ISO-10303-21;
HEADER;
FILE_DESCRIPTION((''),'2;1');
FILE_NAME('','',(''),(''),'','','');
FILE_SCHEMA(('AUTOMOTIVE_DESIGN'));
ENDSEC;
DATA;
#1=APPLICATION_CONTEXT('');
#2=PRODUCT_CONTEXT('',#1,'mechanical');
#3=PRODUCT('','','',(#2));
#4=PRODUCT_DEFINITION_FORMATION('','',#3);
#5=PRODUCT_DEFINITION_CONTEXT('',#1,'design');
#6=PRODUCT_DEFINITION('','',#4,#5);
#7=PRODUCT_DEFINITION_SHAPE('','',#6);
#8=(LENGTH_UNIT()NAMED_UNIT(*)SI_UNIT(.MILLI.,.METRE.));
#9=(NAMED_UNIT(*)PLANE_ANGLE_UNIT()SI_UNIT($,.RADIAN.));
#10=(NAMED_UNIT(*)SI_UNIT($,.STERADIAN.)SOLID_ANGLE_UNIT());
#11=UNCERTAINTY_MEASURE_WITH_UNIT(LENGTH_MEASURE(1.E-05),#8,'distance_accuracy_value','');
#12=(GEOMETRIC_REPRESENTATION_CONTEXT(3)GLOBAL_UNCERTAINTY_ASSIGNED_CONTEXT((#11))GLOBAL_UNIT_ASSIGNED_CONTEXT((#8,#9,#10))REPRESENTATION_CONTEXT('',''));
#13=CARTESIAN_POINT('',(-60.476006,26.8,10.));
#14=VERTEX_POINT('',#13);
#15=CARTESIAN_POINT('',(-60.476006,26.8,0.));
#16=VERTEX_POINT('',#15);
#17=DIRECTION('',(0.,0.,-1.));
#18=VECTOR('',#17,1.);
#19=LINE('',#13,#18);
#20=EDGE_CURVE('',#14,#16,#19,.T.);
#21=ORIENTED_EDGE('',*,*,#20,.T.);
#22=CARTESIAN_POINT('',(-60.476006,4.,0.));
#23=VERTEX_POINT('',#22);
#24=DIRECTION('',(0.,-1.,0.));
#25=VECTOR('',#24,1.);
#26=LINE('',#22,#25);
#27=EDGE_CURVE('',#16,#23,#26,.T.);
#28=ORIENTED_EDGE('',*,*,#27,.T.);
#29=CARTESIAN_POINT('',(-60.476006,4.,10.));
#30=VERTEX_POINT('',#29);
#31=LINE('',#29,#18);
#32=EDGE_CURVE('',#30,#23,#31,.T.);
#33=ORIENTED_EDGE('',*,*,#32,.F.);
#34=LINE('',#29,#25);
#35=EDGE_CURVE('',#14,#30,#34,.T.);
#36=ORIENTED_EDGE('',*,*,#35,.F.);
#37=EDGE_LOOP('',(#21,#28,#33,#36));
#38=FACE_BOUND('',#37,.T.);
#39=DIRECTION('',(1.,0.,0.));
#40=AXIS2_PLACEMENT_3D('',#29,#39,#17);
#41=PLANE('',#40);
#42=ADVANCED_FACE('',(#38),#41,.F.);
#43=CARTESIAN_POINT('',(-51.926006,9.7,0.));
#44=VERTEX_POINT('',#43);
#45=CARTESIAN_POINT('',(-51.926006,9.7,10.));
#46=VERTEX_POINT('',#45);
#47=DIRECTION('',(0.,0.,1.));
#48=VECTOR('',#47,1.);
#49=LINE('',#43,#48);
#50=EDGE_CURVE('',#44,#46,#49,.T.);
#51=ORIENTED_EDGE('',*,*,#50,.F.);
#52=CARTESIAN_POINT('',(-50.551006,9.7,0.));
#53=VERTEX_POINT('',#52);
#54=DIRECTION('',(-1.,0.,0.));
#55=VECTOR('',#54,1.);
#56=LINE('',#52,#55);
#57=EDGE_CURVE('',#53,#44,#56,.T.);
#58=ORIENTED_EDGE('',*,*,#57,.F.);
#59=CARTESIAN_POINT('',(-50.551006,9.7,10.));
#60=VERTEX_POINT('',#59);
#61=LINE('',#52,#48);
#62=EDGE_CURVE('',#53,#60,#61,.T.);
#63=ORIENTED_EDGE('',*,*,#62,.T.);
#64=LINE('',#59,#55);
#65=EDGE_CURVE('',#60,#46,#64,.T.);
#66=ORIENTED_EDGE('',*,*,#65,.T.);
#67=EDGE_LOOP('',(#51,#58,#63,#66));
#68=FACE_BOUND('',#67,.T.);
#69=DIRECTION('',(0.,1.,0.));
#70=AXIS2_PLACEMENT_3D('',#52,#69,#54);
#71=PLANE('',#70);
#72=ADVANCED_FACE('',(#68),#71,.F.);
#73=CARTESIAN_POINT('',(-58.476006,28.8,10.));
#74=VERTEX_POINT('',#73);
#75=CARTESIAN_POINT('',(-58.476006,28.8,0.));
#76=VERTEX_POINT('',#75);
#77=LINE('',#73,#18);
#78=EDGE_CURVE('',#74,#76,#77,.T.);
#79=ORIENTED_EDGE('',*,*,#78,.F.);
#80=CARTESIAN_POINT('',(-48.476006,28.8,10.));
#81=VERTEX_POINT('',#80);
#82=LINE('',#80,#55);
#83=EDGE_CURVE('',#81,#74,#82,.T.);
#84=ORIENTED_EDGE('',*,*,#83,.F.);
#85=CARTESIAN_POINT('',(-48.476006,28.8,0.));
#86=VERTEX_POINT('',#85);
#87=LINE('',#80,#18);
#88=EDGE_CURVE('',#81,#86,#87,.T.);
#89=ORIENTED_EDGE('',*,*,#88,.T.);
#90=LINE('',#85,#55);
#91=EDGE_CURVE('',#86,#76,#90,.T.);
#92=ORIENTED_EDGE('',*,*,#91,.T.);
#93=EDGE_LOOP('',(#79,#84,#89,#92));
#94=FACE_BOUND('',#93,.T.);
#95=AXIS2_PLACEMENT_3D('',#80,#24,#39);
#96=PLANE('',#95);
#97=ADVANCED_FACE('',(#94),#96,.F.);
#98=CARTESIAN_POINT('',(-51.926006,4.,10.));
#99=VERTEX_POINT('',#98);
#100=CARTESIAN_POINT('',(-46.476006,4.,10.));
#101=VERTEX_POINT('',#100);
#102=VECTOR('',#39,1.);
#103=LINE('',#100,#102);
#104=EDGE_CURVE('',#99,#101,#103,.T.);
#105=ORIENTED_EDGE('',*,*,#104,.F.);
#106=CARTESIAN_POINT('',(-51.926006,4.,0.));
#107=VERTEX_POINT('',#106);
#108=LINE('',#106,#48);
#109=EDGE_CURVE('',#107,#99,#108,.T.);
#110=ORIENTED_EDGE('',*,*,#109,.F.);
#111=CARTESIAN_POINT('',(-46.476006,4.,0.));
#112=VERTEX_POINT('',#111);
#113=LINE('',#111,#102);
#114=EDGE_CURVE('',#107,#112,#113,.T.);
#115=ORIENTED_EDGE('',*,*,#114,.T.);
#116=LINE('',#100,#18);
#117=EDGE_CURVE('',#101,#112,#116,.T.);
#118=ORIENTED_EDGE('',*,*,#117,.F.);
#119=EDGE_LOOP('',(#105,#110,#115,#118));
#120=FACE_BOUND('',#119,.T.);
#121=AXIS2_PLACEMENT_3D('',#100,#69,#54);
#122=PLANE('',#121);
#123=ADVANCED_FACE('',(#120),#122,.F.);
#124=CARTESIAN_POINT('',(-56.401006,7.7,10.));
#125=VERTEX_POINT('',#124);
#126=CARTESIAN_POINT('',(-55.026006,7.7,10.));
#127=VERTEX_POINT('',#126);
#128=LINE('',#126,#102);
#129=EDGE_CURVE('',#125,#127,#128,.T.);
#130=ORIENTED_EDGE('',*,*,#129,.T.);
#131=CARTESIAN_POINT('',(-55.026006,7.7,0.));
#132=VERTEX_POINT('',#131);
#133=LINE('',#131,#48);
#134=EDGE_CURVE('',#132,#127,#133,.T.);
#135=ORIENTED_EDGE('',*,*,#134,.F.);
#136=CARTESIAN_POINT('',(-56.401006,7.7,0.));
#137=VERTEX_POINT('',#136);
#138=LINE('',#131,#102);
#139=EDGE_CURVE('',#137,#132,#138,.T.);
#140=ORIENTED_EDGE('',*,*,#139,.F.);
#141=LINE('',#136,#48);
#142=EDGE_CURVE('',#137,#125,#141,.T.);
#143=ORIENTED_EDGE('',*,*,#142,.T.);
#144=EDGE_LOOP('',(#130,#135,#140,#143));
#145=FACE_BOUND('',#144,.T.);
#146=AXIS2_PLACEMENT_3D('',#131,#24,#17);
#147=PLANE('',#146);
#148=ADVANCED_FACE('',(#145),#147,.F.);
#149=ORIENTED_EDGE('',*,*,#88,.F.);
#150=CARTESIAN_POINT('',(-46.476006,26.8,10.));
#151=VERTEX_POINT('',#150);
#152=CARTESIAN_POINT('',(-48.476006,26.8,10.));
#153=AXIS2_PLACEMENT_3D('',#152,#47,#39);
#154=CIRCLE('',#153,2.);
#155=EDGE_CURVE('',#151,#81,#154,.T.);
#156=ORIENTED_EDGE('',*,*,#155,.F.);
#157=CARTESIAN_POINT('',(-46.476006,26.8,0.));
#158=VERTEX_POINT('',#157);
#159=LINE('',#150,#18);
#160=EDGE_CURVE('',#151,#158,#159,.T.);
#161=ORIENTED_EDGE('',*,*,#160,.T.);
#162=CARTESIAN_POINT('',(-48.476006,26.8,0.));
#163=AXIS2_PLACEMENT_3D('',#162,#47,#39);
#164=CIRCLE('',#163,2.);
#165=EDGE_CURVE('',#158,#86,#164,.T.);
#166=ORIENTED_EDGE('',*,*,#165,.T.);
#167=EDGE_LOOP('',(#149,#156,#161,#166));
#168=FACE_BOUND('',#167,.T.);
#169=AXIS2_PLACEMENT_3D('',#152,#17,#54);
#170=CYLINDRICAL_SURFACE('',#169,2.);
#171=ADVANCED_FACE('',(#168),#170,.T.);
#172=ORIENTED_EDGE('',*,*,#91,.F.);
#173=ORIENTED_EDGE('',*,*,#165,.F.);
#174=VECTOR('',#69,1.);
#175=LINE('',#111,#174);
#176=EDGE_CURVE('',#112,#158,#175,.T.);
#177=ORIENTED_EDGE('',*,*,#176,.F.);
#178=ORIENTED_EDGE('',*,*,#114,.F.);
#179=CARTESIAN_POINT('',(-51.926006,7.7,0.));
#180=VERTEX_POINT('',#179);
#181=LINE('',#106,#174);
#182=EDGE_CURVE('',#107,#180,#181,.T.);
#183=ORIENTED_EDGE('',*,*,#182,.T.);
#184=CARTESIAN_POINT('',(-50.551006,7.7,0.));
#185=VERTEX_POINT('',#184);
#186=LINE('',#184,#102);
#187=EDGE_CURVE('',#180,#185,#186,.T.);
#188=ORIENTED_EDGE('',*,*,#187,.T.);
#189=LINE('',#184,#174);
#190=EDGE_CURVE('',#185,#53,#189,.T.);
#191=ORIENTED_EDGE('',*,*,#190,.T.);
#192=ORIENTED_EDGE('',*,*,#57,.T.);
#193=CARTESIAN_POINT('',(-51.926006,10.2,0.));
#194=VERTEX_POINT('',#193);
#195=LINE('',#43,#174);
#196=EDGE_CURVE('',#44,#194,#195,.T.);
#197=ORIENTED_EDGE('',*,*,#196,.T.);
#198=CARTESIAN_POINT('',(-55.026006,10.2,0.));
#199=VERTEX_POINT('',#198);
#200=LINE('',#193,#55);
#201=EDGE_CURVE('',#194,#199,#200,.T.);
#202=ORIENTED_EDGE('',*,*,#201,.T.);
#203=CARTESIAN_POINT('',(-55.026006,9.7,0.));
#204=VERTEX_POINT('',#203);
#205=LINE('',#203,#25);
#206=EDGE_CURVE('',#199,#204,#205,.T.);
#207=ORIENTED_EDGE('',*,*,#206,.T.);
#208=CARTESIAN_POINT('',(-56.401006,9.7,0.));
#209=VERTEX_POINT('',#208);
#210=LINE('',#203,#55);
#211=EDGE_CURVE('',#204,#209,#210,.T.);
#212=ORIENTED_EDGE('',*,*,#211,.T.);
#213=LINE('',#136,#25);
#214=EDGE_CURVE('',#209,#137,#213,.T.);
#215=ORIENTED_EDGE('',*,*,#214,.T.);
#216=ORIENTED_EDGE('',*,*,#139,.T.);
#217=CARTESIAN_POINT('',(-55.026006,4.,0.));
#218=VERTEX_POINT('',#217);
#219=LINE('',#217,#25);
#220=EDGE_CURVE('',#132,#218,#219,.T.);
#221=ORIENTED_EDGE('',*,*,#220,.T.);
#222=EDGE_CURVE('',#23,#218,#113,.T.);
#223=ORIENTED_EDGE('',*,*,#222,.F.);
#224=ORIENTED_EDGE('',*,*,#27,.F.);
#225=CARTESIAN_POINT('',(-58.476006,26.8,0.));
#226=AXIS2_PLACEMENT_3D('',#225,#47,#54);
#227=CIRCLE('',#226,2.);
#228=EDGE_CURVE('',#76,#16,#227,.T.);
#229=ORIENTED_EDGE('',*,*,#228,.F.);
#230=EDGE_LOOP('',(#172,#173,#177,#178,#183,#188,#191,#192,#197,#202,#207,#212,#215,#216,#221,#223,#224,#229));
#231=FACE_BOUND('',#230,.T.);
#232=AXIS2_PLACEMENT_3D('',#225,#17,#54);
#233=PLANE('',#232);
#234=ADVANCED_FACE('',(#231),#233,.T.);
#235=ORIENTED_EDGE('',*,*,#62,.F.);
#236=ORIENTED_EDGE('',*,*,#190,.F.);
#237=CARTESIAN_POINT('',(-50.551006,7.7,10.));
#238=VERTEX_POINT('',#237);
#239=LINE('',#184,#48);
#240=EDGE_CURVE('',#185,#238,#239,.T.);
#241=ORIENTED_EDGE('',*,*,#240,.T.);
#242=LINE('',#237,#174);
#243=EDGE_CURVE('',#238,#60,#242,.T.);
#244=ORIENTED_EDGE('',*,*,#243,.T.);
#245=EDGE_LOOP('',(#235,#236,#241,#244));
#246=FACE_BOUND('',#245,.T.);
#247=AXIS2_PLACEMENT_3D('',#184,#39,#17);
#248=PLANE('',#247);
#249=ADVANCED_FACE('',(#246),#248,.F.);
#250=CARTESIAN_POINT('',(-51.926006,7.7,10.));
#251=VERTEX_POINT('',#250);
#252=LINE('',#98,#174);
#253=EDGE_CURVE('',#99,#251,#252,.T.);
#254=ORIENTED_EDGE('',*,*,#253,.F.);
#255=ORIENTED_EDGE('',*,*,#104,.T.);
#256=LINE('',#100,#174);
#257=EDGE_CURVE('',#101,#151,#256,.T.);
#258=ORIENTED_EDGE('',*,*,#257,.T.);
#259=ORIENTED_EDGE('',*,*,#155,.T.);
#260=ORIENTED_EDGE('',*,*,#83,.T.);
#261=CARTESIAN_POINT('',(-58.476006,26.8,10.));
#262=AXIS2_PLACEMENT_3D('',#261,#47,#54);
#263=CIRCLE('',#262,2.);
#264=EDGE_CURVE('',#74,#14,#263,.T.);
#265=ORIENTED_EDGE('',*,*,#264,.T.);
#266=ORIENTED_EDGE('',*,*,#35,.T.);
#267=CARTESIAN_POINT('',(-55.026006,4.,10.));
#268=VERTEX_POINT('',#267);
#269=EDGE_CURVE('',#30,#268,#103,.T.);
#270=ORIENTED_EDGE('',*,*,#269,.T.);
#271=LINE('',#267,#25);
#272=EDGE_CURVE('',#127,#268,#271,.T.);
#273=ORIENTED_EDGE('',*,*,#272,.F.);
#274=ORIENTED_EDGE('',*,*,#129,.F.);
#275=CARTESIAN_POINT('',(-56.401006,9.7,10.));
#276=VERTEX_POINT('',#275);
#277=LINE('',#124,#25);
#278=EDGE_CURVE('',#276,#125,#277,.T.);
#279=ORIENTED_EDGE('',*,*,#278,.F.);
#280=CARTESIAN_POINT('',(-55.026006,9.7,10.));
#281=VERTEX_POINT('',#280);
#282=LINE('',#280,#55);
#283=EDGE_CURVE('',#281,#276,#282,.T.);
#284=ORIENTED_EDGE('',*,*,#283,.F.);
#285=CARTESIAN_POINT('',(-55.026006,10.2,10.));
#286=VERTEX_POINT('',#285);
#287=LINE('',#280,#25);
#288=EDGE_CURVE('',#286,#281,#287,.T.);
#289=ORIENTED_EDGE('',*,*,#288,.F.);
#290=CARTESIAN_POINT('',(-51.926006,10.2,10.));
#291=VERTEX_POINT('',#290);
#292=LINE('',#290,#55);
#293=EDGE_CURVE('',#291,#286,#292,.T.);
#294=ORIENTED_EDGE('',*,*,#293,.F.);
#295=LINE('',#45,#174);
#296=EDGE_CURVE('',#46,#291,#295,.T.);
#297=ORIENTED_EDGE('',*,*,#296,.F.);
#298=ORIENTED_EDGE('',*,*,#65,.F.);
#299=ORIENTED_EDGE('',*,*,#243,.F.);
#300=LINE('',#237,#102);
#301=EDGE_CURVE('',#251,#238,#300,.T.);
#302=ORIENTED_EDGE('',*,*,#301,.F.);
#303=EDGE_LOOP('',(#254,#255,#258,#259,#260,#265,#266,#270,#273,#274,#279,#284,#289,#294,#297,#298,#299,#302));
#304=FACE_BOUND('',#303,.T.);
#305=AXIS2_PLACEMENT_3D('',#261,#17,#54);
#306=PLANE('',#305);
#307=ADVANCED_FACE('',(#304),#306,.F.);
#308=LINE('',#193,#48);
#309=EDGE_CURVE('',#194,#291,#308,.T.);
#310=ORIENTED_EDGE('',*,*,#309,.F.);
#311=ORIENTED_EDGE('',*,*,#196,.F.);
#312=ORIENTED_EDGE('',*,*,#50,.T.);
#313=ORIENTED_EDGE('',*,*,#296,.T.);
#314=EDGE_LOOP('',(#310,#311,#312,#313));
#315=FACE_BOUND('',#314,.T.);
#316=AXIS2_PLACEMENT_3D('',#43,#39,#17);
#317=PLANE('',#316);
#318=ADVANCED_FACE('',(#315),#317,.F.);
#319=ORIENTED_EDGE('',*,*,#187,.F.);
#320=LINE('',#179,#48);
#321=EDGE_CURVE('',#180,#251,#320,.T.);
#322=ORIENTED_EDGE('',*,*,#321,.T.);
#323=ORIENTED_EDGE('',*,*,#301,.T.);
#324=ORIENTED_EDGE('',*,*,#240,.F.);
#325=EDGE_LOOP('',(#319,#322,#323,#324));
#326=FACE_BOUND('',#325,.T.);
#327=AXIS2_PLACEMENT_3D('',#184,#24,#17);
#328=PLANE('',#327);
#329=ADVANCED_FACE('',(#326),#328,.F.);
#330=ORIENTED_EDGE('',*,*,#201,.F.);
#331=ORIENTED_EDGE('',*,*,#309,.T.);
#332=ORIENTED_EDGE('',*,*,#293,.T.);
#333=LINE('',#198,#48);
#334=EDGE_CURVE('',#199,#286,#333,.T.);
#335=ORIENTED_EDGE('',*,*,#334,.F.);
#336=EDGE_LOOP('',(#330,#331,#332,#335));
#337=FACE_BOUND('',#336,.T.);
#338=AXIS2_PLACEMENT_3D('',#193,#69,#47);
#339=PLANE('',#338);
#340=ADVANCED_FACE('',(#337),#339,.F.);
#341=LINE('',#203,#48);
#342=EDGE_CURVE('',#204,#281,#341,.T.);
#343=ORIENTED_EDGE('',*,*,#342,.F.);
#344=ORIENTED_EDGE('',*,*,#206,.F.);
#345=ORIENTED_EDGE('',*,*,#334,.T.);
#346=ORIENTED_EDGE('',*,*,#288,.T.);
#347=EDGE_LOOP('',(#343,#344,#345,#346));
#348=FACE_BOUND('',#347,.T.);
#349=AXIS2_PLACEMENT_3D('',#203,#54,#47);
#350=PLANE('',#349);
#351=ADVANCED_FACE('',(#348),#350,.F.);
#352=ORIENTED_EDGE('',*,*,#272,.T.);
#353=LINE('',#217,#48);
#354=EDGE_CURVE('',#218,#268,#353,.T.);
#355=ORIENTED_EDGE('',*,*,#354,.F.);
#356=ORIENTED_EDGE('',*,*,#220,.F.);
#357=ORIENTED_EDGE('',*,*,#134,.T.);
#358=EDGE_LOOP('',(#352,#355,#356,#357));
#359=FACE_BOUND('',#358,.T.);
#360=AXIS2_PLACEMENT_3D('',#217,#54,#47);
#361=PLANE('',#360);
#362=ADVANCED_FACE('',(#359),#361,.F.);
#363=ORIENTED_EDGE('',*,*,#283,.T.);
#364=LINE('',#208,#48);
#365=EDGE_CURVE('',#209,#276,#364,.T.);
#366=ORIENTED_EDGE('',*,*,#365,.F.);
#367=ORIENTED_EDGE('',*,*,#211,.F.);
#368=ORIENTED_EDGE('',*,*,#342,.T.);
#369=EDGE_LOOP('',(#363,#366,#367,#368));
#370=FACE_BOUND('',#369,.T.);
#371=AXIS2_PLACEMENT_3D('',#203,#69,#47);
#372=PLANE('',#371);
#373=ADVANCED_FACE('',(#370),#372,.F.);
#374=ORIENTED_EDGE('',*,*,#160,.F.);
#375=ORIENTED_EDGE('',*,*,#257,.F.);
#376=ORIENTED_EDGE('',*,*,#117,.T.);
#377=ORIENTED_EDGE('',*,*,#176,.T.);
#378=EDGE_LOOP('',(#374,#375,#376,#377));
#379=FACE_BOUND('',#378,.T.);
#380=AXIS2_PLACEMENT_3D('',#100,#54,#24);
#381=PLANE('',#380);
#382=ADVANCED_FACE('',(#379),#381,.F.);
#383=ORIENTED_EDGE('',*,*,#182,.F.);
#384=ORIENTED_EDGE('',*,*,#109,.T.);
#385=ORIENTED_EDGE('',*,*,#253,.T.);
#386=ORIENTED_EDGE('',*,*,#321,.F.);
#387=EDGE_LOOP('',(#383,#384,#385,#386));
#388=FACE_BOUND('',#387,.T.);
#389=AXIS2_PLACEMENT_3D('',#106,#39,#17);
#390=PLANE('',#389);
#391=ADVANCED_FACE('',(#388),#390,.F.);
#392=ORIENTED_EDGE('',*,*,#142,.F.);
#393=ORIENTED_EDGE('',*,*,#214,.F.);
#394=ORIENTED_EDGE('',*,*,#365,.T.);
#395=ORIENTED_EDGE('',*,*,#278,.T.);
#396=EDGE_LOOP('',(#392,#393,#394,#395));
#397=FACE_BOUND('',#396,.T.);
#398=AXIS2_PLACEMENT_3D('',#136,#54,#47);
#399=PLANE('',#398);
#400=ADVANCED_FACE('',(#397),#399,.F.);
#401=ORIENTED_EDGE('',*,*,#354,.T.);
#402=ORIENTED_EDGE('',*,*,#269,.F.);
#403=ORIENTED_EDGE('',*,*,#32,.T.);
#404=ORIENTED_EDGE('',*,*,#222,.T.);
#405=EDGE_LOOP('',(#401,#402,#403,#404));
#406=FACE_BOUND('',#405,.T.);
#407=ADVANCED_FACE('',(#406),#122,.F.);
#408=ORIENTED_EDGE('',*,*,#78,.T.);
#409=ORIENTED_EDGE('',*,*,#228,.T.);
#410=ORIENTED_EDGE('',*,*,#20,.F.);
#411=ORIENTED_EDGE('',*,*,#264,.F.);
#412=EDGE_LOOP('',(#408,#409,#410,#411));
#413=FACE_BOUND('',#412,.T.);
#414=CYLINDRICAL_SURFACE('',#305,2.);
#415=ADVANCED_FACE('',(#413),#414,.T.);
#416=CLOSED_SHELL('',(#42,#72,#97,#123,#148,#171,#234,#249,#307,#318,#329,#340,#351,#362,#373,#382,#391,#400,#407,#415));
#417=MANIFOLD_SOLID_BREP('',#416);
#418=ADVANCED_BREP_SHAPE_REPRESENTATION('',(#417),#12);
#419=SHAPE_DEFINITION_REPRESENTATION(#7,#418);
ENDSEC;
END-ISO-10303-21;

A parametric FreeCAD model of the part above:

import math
import FreeCAD as App
import Part
import Sketcher

V = App.Vector
Q = App.Units.Quantity


def add_polygon(sketch, points):
    """Adds a closed chain of lines whose ends are joined by coincident constraints."""
    first, n = sketch.GeometryCount, len(points)
    for a, b in zip(points, points[1:] + points[:1]):
        sketch.addGeometry(Part.LineSegment(App.Vector(*a, 0), App.Vector(*b, 0)), False)
    for i in range(n):
        sketch.addConstraint(Sketcher.Constraint("Coincident", first + i, 2, first + (i + 1) % n, 1))

doc = App.newDocument("Part")
body = doc.addObject("PartDesign::Body", "Body")

# Sketch on XY plane
sketch1 = doc.addObject("Sketcher::SketchObject", "Sketch")
body.addObject(sketch1)
sketch1.AttachmentSupport = (doc.XY_Plane, [""])
sketch1.MapMode = "FlatFace"
sketch1.addGeometry([
    Part.LineSegment(V(-60.5, 4, 0), V(-46.5, 4, 0)),  # 0
    Part.LineSegment(V(-46.5, 4, 0), V(-46.5, 26.8, 0)),  # 1
    Part.ArcOfCircle(Part.Circle(V(-48.5, 26.8, 0), V(0, 0, 1), 2), math.radians(0), math.radians(90)),  # 2
    Part.LineSegment(V(-48.5, 28.8, 0), V(-58.5, 28.8, 0)),  # 3
    Part.ArcOfCircle(Part.Circle(V(-58.5, 26.8, 0), V(0, 0, 1), 2), math.radians(90), math.radians(180)),  # 4
    Part.LineSegment(V(-60.5, 26.8, 0), V(-60.5, 4, 0)),  # 5
], False)
sketch1.addConstraint([
    Sketcher.Constraint("Coincident", 0, 2, 1, 1),
    Sketcher.Constraint("Tangent", 1, 2, 2, 1),
    Sketcher.Constraint("Tangent", 2, 2, 3, 1),
    Sketcher.Constraint("Tangent", 3, 2, 4, 1),
    Sketcher.Constraint("Tangent", 4, 2, 5, 1),
    Sketcher.Constraint("Coincident", 5, 2, 0, 1),
    Sketcher.Constraint("Horizontal", 0),
    Sketcher.Constraint("Vertical", 1),
    Sketcher.Constraint("Horizontal", 3),
    Sketcher.Constraint("Vertical", 5),
    Sketcher.Constraint("Equal", 2, 4),
    Sketcher.Constraint("Radius", 2, Q("2 mm")),
    Sketcher.Constraint("DistanceX", 0, 1, 0, 2, Q("14 mm")),
    Sketcher.Constraint("DistanceY", 1, 1, 1, 2, Q("22.8 mm")),
    Sketcher.Constraint("DistanceY", -1, 1, 0, 2, Q("4 mm")),
    Sketcher.Constraint("DistanceX", 2, 3, -1, 1, Q("48.476006 mm")),
])
pad1 = doc.addObject("PartDesign::Pad", "Pad")
body.addObject(pad1)
pad1.Profile = sketch1
pad1.Length = 10

# Sketch on XY plane
sketch2 = doc.addObject("Sketcher::SketchObject", "Sketch001")
body.addObject(sketch2)
sketch2.AttachmentSupport = (doc.XY_Plane, [""])
sketch2.MapMode = "FlatFace"
sketch2.AttachmentOffset = App.Placement(V(0, 0, 10), App.Rotation())
add_polygon(sketch2, [(-55, 4), (-51.9, 4), (-51.9, 7.7), (-50.6, 7.7), (-50.6, 9.7), (-51.9, 9.7), (-51.9, 10.2), (-55, 10.2), (-55, 9.7), (-56.4, 9.7), (-56.4, 7.7), (-55, 7.7)])  # lines 0-11
sketch2.addConstraint([
    Sketcher.Constraint("Horizontal", 0),
    Sketcher.Constraint("Vertical", 1),
    Sketcher.Constraint("Horizontal", 2),
    Sketcher.Constraint("Vertical", 3),
    Sketcher.Constraint("Horizontal", 4),
    Sketcher.Constraint("Vertical", 5),
    Sketcher.Constraint("Horizontal", 6),
    Sketcher.Constraint("Vertical", 7),
    Sketcher.Constraint("Horizontal", 8),
    Sketcher.Constraint("Vertical", 9),
    Sketcher.Constraint("Horizontal", 10),
    Sketcher.Constraint("Vertical", 11),
    Sketcher.Constraint("Horizontal", 4, 2, 7, 2),
    Sketcher.Constraint("Horizontal", 2, 2, 9, 2),
    Sketcher.Constraint("Vertical", 1, 2, 4, 2),
    Sketcher.Constraint("Vertical", 7, 2, 10, 2),
    Sketcher.Constraint("Equal", 4, 8),
    Sketcher.Constraint("DistanceY", 3, 1, 3, 2, Q("2 mm")),
    Sketcher.Constraint("DistanceX", 0, 1, 0, 2, Q("3.1 mm")),
    Sketcher.Constraint("DistanceY", 1, 1, 1, 2, Q("3.7 mm")),
    Sketcher.Constraint("DistanceY", 5, 1, 5, 2, Q("0.5 mm")),
    Sketcher.Constraint("DistanceY", -1, 1, 0, 2, Q("4 mm")),
    Sketcher.Constraint("DistanceX", 2, 1, 2, 2, Q("1.375 mm")),
    Sketcher.Constraint("DistanceX", 0, 2, -1, 1, Q("51.926006 mm")),
])
pocket1 = doc.addObject("PartDesign::Pocket", "Pocket")
body.addObject(pocket1)
pocket1.Profile = sketch2
pocket1.Length = 10

doc.recompute()
